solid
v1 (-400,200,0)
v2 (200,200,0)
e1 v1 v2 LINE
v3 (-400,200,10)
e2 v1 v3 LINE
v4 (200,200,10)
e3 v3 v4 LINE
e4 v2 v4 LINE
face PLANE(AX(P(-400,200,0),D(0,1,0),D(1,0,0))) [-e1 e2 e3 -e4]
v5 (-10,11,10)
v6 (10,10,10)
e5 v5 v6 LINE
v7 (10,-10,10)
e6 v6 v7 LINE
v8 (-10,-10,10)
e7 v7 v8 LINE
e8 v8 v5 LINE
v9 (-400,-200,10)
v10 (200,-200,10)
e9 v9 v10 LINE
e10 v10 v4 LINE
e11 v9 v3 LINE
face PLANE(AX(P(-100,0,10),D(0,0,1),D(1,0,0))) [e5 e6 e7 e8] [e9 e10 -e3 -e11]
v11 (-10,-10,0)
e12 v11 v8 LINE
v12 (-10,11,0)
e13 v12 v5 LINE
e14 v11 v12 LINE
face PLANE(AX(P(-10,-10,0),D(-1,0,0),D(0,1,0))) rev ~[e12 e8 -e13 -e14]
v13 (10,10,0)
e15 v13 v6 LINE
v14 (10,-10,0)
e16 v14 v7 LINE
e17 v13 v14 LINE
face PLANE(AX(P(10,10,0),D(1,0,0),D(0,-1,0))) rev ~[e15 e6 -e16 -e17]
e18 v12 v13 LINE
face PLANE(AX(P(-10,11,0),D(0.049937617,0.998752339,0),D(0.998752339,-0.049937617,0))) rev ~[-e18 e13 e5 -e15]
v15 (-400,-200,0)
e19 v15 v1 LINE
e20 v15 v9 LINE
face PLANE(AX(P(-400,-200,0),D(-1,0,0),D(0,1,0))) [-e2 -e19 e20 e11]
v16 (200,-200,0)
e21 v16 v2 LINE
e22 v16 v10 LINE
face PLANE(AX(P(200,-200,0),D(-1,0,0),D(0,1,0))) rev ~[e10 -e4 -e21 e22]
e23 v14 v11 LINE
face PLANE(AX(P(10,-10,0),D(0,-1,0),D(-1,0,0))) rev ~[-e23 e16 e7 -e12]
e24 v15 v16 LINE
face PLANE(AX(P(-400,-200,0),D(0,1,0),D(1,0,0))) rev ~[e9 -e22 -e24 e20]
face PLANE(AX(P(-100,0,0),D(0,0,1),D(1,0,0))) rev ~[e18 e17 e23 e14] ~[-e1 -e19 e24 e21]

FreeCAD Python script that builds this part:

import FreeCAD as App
import Part
import Sketcher

V = App.Vector
Q = App.Units.Quantity

doc = App.newDocument("Part")
params = doc.addObject("Spreadsheet::Sheet", "Params")
for row, (alias, value) in enumerate([
    ("sketch1_width", "600 mm"),
    ("sketch1_width2", "20 mm"),
    ("sketch1_height", "400 mm"),
    ("sketch1_height2", "21 mm"),
    ("pad1_length", "10 mm"),
], start=1):
    params.set(f"A{row}", alias)
    params.set(f"B{row}", "=" + value)
    params.setAlias(f"B{row}", alias)

body = doc.addObject("PartDesign::Body", "Body")

sketch1 = doc.addObject("Sketcher::SketchObject", "Sketch")
body.addObject(sketch1)
sketch1.AttachmentSupport = (doc.XY_Plane, [""])
sketch1.MapMode = "FlatFace"
sketch1.addGeometry([
    Part.LineSegment(V(-400, 200, 0), V(-400, -200, 0)),
    Part.LineSegment(V(-400, -200, 0), V(200, -200, 0)),
    Part.LineSegment(V(200, -200, 0), V(200, 200, 0)),
    Part.LineSegment(V(200, 200, 0), V(-400, 200, 0)),
    Part.LineSegment(V(10, -10, 0), V(-10, -10, 0)),
    Part.LineSegment(V(-10, -10, 0), V(-10, 11, 0)),
    Part.LineSegment(V(-10, 11, 0), V(10, 10, 0)),
    Part.LineSegment(V(10, 10, 0), V(10, -10, 0)),
], False)
sketch1.addConstraint([
    Sketcher.Constraint("Coincident", 0, 2, 1, 1),
    Sketcher.Constraint("Coincident", 1, 2, 2, 1),
    Sketcher.Constraint("Coincident", 2, 2, 3, 1),
    Sketcher.Constraint("Coincident", 3, 2, 0, 1),
    Sketcher.Constraint("Coincident", 4, 2, 5, 1),
    Sketcher.Constraint("Coincident", 5, 2, 6, 1),
    Sketcher.Constraint("Coincident", 6, 2, 7, 1),
    Sketcher.Constraint("Coincident", 7, 2, 4, 1),
    Sketcher.Constraint("Vertical", 0),
    Sketcher.Constraint("Horizontal", 1),
    Sketcher.Constraint("Vertical", 2),
    Sketcher.Constraint("Horizontal", 3),
    Sketcher.Constraint("Horizontal", 4),
    Sketcher.Constraint("Vertical", 5),
    Sketcher.Constraint("Vertical", 7),
    Sketcher.Constraint("Symmetric", 4, 2, 6, 2, -1, 1),
    Sketcher.Constraint("Equal", 4, 7),
    Sketcher.Constraint("DistanceX", 1, 1, 1, 2, Q("600 mm")),
    Sketcher.Constraint("DistanceX", 4, 2, 4, 1, Q("20 mm")),
    Sketcher.Constraint("DistanceY", 0, 2, 0, 1, Q("400 mm")),
    Sketcher.Constraint("DistanceY", 5, 1, 5, 2, Q("21 mm")),
    Sketcher.Constraint("DistanceX", 0, 2, -1, 1, Q("400 mm")),
    Sketcher.Constraint("DistanceY", 0, 2, -1, 1, Q("200 mm")),
])
sketch1.setExpression("Constraints[17]", "Params.sketch1_width")
sketch1.setExpression("Constraints[18]", "Params.sketch1_width2")
sketch1.setExpression("Constraints[19]", "Params.sketch1_height")
sketch1.setExpression("Constraints[20]", "Params.sketch1_height2")
pad1 = doc.addObject("PartDesign::Pad", "Pad")
body.addObject(pad1)
pad1.Profile = sketch1
pad1.setExpression("Length", "Params.pad1_length")

doc.recompute()
